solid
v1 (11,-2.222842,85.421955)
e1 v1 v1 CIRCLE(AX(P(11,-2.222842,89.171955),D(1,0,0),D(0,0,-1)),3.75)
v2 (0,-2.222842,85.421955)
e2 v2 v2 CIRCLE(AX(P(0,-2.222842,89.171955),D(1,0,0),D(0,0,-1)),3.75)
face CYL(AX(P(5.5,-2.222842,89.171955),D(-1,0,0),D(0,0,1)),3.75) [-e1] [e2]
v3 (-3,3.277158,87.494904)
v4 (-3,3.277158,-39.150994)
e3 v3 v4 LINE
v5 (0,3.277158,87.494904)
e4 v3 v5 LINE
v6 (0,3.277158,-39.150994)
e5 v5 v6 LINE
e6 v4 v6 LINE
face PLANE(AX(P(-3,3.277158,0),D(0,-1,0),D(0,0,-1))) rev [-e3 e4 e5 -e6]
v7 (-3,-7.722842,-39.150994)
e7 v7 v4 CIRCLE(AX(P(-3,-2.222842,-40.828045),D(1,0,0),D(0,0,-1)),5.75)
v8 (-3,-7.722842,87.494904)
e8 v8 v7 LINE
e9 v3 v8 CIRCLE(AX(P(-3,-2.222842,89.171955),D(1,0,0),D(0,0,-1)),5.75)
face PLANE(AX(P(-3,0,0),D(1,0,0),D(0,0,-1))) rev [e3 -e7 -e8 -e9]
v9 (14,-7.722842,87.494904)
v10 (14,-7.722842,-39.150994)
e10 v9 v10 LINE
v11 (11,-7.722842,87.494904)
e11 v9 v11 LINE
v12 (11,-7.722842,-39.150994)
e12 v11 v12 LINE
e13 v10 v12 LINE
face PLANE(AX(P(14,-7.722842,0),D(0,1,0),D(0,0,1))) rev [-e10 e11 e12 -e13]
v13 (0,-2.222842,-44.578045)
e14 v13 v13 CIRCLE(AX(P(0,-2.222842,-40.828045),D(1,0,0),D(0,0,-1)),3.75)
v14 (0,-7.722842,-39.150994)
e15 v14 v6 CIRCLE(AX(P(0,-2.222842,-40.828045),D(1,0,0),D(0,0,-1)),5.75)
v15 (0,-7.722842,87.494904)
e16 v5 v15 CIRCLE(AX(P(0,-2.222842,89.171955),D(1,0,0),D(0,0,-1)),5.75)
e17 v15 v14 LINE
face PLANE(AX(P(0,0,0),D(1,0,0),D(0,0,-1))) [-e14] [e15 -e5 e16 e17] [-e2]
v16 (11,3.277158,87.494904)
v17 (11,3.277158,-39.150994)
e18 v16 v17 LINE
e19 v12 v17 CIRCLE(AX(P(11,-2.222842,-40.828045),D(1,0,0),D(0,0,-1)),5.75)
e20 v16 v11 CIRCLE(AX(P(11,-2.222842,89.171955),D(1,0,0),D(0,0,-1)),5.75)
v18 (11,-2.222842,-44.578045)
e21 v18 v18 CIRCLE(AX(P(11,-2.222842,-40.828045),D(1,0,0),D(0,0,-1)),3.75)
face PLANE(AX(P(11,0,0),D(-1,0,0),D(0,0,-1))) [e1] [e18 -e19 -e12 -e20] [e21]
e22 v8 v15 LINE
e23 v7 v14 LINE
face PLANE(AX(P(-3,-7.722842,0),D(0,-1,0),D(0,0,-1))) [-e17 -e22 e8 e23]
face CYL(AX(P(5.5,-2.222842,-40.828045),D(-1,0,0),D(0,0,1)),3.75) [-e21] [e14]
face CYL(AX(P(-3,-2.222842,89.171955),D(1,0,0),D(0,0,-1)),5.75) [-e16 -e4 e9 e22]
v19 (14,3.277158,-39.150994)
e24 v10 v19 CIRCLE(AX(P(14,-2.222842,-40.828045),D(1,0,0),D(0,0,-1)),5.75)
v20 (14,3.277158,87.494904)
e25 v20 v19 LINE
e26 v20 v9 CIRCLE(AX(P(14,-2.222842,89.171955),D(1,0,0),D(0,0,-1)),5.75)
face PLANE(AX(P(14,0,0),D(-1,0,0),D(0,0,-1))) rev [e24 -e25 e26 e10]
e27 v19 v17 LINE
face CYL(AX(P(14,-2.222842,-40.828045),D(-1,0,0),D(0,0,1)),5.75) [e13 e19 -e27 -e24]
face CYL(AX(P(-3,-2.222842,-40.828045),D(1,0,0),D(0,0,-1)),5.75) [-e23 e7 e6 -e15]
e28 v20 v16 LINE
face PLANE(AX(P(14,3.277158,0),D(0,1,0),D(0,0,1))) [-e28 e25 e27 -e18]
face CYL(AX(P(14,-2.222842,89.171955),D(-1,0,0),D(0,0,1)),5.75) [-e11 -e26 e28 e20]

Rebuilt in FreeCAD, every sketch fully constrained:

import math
import FreeCAD as App
import Part
import Sketcher

V = App.Vector
Q = App.Units.Quantity

doc = App.newDocument("Part")
body = doc.addObject("PartDesign::Body", "Body")
body.AllowCompound = True

# Sketch on YZ plane
sketch1 = body.newObject("Sketcher::SketchObject", "Sketch")
sketch1.AttachmentSupport = (doc.getObject("YZ_Plane"), [""])
sketch1.MapMode = "FlatFace"
sketch1.addGeometry(Part.Circle(V(-2.2, 89.2, 0), V(0, 0, 1), 3.8), False)
sketch1.addGeometry(Part.Circle(V(-2.2, -40.8, 0), V(0, 0, 1), 3.8), False)
sketch1.addConstraint(Sketcher.Constraint("Equal", 0, 1))
sketch1.addConstraint(Sketcher.Constraint("Vertical", 0, 3, 1, 3))
sketch1.addConstraint(Sketcher.Constraint("Diameter", 0, Q("7.5 mm")))
sketch1.addConstraint(Sketcher.Constraint("DistanceY", 1, 3, 0, 3, Q("130 mm")))
sketch1.addConstraint(Sketcher.Constraint("DistanceX", 0, 3, -1, 1, Q("2.222842 mm")))
sketch1.addConstraint(Sketcher.Constraint("DistanceY", -1, 1, 0, 3, Q("89.171955 mm")))
pad1 = body.newObject("PartDesign::Pad", "Pad")
pad1.Profile = sketch1
pad1.Length = 5.5

# Sketch on YZ plane
sketch2 = body.newObject("Sketcher::SketchObject", "Sketch001")
sketch2.AttachmentSupport = (doc.getObject("YZ_Plane"), [""])
sketch2.MapMode = "FlatFace"
sketch2.AttachmentOffset = App.Placement(V(0, 0, -3), App.Rotation())
sketch2.addGeometry(Part.LineSegment(V(-8, 87, 0), V(-8, -39, 0)), False)
sketch2.addGeometry(Part.ArcOfCircle(Part.Circle(V(-2, -41, 0), V(0, 0, 1), 6), math.radians(163), math.radians(377)), False)
sketch2.addGeometry(Part.LineSegment(V(3, -39, 0), V(3, 87, 0)), False)
sketch2.addGeometry(Part.ArcOfCircle(Part.Circle(V(-2, 89, 0), V(0, 0, 1), 6), math.radians(-17), math.radians(197)), False)
sketch2.addConstraint(Sketcher.Constraint("Coincident", 0, 2, 1, 1))
sketch2.addConstraint(Sketcher.Constraint("Coincident", 1, 2, 2, 1))
sketch2.addConstraint(Sketcher.Constraint("Coincident", 2, 2, 3, 1))
sketch2.addConstraint(Sketcher.Constraint("Coincident", 3, 2, 0, 1))
sketch2.addConstraint(Sketcher.Constraint("Vertical", 0))
sketch2.addConstraint(Sketcher.Constraint("Vertical", 2))
sketch2.addConstraint(Sketcher.Constraint("Equal", 1, 3))
sketch2.addConstraint(Sketcher.Constraint("Horizontal", 0, 2, 1, 2))
sketch2.addConstraint(Sketcher.Constraint("Horizontal", 2, 2, 3, 2))
sketch2.addConstraint(Sketcher.Constraint("Radius", 1, Q("5.75 mm")))
sketch2.addConstraint(Sketcher.Constraint("DistanceY", 1, 3, 3, 3, Q("130 mm")))
sketch2.addConstraint(Sketcher.Constraint("DistanceX", 0, 2, 1, 2, Q("11 mm")))
sketch2.addConstraint(Sketcher.Constraint("DistanceX", 1, 3, -1, 1, Q("2.222842 mm")))
sketch2.addConstraint(Sketcher.Constraint("DistanceY", 1, 3, -1, 1, Q("40.828045 mm")))
pad2 = body.newObject("PartDesign::Pad", "Pad001")
pad2.Profile = sketch2
pad2.Length = 3
doc.recompute()

datumplane = body.newObject("PartDesign::Plane", "DatumPlane")
datumplane.AttachmentSupport = (doc.getObject("YZ_Plane"), [""])
datumplane.MapMode = "FlatFace"
datumplane.AttachmentOffset = App.Placement(V(0, 0, 5.5), App.Rotation())
mirrored = body.newObject("PartDesign::Mirrored", "Mirrored")
mirrored.Originals = [pad1, pad2]
mirrored.MirrorPlane = (datumplane, [""])
body.Tip = mirrored

doc.recompute()
